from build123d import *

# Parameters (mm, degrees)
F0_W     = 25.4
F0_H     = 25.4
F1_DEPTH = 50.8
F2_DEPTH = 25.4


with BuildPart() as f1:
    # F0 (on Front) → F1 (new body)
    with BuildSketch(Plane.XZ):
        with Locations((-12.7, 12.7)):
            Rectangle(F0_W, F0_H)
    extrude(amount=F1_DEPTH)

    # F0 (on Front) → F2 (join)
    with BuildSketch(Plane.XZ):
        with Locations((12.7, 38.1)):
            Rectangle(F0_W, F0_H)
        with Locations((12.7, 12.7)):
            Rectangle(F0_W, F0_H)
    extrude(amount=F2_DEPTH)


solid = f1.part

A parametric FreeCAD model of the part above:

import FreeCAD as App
import Part
import Sketcher
Q = App.Units.Quantity

doc = App.newDocument("Part")
body = doc.addObject("PartDesign::Body", "Body")

sketch1 = body.newObject("Sketcher::SketchObject", "Sketch")
sketch1.AttachmentSupport = (doc.getObject("XZ_Plane"), [""])
sketch1.MapMode = "FlatFace"
sketch1.addGeometry(Part.LineSegment(App.Vector(-25, 25, 0), App.Vector(-25, 0, 0)), False)
sketch1.addGeometry(Part.LineSegment(App.Vector(-25, 0, 0), App.Vector(0, 0, 0)), False)
sketch1.addGeometry(Part.LineSegment(App.Vector(0, 0, 0), App.Vector(0, 25, 0)), False)
sketch1.addGeometry(Part.LineSegment(App.Vector(0, 25, 0), App.Vector(-25, 25, 0)), False)
sketch1.addConstraint(Sketcher.Constraint("Coincident", 0, 2, 1, 1))
sketch1.addConstraint(Sketcher.Constraint("Coincident", 1, 2, 2, 1))
sketch1.addConstraint(Sketcher.Constraint("Coincident", 2, 2, 3, 1))
sketch1.addConstraint(Sketcher.Constraint("Coincident", 3, 2, 0, 1))
sketch1.addConstraint(Sketcher.Constraint("Vertical", 0))
sketch1.addConstraint(Sketcher.Constraint("Horizontal", 1))
sketch1.addConstraint(Sketcher.Constraint("Vertical", 2))
sketch1.addConstraint(Sketcher.Constraint("Horizontal", 3))
sketch1.addConstraint(Sketcher.Constraint("Coincident", 1, 2, -1, 1))
sketch1.addConstraint(Sketcher.Constraint("Equal", 3, 0))
sketch1.addConstraint(Sketcher.Constraint("DistanceX", 1, 1, 1, 2, Q("1 in")))
pad1 = body.newObject("PartDesign::Pad", "Pad")
pad1.Profile = sketch1
pad1.Length = Q("2 in")

sketch2 = body.newObject("Sketcher::SketchObject", "Sketch001")
sketch2.AttachmentSupport = (doc.getObject("XZ_Plane"), [""])
sketch2.MapMode = "FlatFace"
sketch2.addGeometry(Part.LineSegment(App.Vector(0, 51, 0), App.Vector(0, 0, 0)), False)
sketch2.addGeometry(Part.LineSegment(App.Vector(0, 0, 0), App.Vector(25, 0, 0)), False)
sketch2.addGeometry(Part.LineSegment(App.Vector(25, 0, 0), App.Vector(25, 51, 0)), False)
sketch2.addGeometry(Part.LineSegment(App.Vector(25, 51, 0), App.Vector(0, 51, 0)), False)
sketch2.addConstraint(Sketcher.Constraint("Coincident", 0, 2, 1, 1))
sketch2.addConstraint(Sketcher.Constraint("Coincident", 1, 2, 2, 1))
sketch2.addConstraint(Sketcher.Constraint("Coincident", 2, 2, 3, 1))
sketch2.addConstraint(Sketcher.Constraint("Coincident", 3, 2, 0, 1))
sketch2.addConstraint(Sketcher.Constraint("Vertical", 0))
sketch2.addConstraint(Sketcher.Constraint("Horizontal", 1))
sketch2.addConstraint(Sketcher.Constraint("Vertical", 2))
sketch2.addConstraint(Sketcher.Constraint("Horizontal", 3))
sketch2.addConstraint(Sketcher.Constraint("Coincident", 0, 2, -1, 1))
sketch2.addConstraint(Sketcher.Constraint("DistanceX", 1, 1, 1, 2, Q("1 in")))
sketch2.addConstraint(Sketcher.Constraint("DistanceY", 0, 2, 0, 1, Q("2 in")))
pad2 = body.newObject("PartDesign::Pad", "Pad001")
pad2.Profile = sketch2
pad2.Length = Q("1 in")

doc.recompute()
